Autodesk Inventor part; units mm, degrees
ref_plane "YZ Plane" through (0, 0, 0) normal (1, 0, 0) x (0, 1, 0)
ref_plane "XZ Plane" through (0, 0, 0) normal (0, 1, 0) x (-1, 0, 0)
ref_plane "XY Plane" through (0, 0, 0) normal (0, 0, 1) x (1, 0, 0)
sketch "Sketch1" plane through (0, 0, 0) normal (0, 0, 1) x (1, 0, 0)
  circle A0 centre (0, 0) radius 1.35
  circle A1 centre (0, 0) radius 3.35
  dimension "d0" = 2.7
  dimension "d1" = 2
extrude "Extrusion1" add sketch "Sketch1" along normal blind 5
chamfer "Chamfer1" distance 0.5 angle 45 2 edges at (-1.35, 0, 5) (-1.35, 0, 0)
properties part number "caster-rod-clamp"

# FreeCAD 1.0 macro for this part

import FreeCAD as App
import Part
import Sketcher

V = App.Vector
Q = App.Units.Quantity


def edges_at(feature, points):
    """Names of the edges that pass closest to the given points."""
    edges = feature.Shape.Edges
    near = lambda p: min(range(len(edges)), key=lambda i: edges[i].distToShape(Part.Vertex(*p))[0])
    return sorted({f"Edge{near(p) + 1}" for p in points})

doc = App.newDocument("Part")
body = doc.addObject("PartDesign::Body", "Body")

sketch1 = body.newObject("Sketcher::SketchObject", "Sketch")
sketch1.AttachmentSupport = (doc.getObject("XY_Plane"), [""])
sketch1.MapMode = "FlatFace"
sketch1.addGeometry([
    Part.Circle(V(0, 0, 0), V(0, 0, 1), 3.4),
    Part.Circle(V(0, 0, 0), V(0, 0, 1), 1.4),
], False)
sketch1.addConstraint([
    Sketcher.Constraint("Coincident", 0, 3, -1, 1),
    Sketcher.Constraint("Coincident", 1, 3, -1, 1),
    Sketcher.Constraint("Diameter", 1, Q("2.7 mm")),
    Sketcher.Constraint("Diameter", 0, Q("6.7 mm")),
])
pad1 = body.newObject("PartDesign::Pad", "Pad")
pad1.Profile = sketch1
pad1.Length = 5
doc.recompute()

chamfer = body.newObject("PartDesign::Chamfer", "Chamfer")
chamfer.Base = (pad1, edges_at(pad1, [(-1.35, 0, 5), (-1.35, 0, 0)]))
chamfer.Size = 0.5

doc.recompute()
